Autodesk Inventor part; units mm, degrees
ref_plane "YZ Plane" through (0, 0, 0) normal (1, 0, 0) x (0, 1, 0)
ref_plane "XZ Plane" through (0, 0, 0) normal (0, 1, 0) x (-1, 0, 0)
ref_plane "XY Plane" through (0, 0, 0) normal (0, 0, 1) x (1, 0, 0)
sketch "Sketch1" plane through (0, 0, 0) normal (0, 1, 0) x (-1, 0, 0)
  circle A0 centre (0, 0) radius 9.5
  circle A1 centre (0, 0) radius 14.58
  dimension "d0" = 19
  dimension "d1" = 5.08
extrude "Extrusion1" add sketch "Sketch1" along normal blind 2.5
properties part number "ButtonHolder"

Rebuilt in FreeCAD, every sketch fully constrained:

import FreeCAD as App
import Part
import Sketcher
from FreeCAD import Vector

doc = App.newDocument("Part")
body = doc.addObject("PartDesign::Body", "Body")

# Sketch on XZ plane
sketch1 = doc.addObject("Sketcher::SketchObject", "Sketch")
body.addObject(sketch1)
sketch1.AttachmentSupport = (doc.XZ_Plane, [""])
sketch1.MapMode = "FlatFace"
sketch1.addGeometry(Part.Circle(Vector(0, 0, 0), Vector(0, 0, 1), 15), False)
sketch1.addGeometry(Part.Circle(Vector(0, 0, 0), Vector(0, 0, 1), 10), False)
sketch1.addConstraint(Sketcher.Constraint("Coincident", 0, 3, -1, 1))
sketch1.addConstraint(Sketcher.Constraint("Coincident", 1, 3, -1, 1))
sketch1.addConstraint(Sketcher.Constraint("Diameter", 1, 19.0))
sketch1.addConstraint(Sketcher.Constraint("Diameter", 0, 29.16))
pad1 = doc.addObject("PartDesign::Pad", "Pad")
body.addObject(pad1)
pad1.Profile = sketch1
pad1.Length = 2.5
pad1.Reversed = True

doc.recompute()
